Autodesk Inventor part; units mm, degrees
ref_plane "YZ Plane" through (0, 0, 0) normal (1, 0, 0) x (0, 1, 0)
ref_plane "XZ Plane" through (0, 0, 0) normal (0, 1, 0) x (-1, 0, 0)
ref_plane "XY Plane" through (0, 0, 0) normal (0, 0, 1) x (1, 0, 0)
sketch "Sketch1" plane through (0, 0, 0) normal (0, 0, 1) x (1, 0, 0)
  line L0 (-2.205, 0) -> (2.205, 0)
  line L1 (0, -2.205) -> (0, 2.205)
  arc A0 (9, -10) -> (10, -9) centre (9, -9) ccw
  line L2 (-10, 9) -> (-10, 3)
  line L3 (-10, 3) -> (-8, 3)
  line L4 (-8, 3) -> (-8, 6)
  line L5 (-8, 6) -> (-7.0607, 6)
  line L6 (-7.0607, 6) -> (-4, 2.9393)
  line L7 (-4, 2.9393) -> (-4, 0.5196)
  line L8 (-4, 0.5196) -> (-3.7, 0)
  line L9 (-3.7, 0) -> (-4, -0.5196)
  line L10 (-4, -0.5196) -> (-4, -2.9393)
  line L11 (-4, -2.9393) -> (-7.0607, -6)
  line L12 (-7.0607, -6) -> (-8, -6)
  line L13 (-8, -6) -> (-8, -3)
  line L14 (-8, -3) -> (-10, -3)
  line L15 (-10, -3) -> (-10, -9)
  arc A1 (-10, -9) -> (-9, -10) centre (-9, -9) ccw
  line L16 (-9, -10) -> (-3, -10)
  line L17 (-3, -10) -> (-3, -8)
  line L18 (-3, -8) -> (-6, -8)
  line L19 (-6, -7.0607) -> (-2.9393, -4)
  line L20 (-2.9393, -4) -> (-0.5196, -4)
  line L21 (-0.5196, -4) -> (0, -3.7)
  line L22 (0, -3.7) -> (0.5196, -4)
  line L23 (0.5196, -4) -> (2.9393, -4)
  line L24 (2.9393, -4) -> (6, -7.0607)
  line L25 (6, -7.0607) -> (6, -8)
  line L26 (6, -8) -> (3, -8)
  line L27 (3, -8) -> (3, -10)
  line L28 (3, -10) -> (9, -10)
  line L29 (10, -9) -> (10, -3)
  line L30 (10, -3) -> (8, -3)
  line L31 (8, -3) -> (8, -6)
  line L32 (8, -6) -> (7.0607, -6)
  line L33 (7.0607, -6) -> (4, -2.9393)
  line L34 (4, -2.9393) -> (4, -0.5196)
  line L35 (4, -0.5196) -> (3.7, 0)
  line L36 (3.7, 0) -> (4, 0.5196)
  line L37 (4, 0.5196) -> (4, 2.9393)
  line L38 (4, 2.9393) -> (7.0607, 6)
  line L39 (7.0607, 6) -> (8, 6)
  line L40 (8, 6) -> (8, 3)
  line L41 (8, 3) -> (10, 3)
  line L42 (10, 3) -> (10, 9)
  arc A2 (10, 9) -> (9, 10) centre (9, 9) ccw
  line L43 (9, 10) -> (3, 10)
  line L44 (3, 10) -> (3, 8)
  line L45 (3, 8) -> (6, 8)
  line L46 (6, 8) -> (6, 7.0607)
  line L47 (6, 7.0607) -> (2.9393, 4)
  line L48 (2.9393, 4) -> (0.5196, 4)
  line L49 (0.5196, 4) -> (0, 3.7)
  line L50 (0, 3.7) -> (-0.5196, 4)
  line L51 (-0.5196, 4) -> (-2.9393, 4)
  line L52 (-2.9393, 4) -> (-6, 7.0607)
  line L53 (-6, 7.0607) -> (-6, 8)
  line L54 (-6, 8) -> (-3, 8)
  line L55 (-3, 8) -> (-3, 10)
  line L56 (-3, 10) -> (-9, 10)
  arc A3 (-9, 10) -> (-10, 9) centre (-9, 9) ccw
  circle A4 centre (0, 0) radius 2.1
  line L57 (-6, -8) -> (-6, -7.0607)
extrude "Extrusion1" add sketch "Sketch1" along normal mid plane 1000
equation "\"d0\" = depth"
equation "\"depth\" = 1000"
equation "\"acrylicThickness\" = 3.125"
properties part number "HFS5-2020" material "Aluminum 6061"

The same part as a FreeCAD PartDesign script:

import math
import FreeCAD as App
import Part
import Sketcher
Q = App.Units.Quantity

doc = App.newDocument("Part")
body = doc.addObject("PartDesign::Body", "Body")

# Sketch on XY plane
sketch1 = body.newObject("Sketcher::SketchObject", "Sketch")
sketch1.AttachmentSupport = (doc.getObject("XY_Plane"), [""])
sketch1.MapMode = "FlatFace"
sketch1.addGeometry([
    Part.LineSegment(App.Vector(3, -10, 0), App.Vector(9, -10, 0)),  # 0
    Part.ArcOfCircle(Part.Circle(App.Vector(9, -9, 0), App.Vector(0, 0, 1), 1), math.radians(-90), math.radians(0)),  # 1
    Part.LineSegment(App.Vector(10, -9, 0), App.Vector(10, -3, 0)),  # 2
    Part.LineSegment(App.Vector(10, -3, 0), App.Vector(8, -3, 0)),  # 3
    Part.LineSegment(App.Vector(8, -3, 0), App.Vector(8, -6, 0)),  # 4
    Part.LineSegment(App.Vector(8, -6, 0), App.Vector(7.1, -6, 0)),  # 5
    Part.LineSegment(App.Vector(7.1, -6, 0), App.Vector(4, -2.9, 0)),  # 6
    Part.LineSegment(App.Vector(4, -2.9, 0), App.Vector(4, -0.5, 0)),  # 7
    Part.LineSegment(App.Vector(4, -0.5, 0), App.Vector(3.7, 0, 0)),  # 8
    Part.LineSegment(App.Vector(3.7, 0, 0), App.Vector(4, 0.5, 0)),  # 9
    Part.LineSegment(App.Vector(4, 0.5, 0), App.Vector(4, 2.9, 0)),  # 10
    Part.LineSegment(App.Vector(4, 2.9, 0), App.Vector(7.1, 6, 0)),  # 11
    Part.LineSegment(App.Vector(7.1, 6, 0), App.Vector(8, 6, 0)),  # 12
    Part.LineSegment(App.Vector(8, 6, 0), App.Vector(8, 3, 0)),  # 13
    Part.LineSegment(App.Vector(8, 3, 0), App.Vector(10, 3, 0)),  # 14
    Part.LineSegment(App.Vector(10, 3, 0), App.Vector(10, 9, 0)),  # 15
    Part.ArcOfCircle(Part.Circle(App.Vector(9, 9, 0), App.Vector(0, 0, 1), 1), math.radians(0), math.radians(90)),  # 16
    Part.LineSegment(App.Vector(9, 10, 0), App.Vector(3, 10, 0)),  # 17
    Part.LineSegment(App.Vector(3, 10, 0), App.Vector(3, 8, 0)),  # 18
    Part.LineSegment(App.Vector(3, 8, 0), App.Vector(6, 8, 0)),  # 19
    Part.LineSegment(App.Vector(6, 8, 0), App.Vector(6, 7.1, 0)),  # 20
    Part.LineSegment(App.Vector(6, 7.1, 0), App.Vector(2.9, 4, 0)),  # 21
    Part.LineSegment(App.Vector(2.9, 4, 0), App.Vector(0.5, 4, 0)),  # 22
    Part.LineSegment(App.Vector(0.5, 4, 0), App.Vector(0, 3.7, 0)),  # 23
    Part.LineSegment(App.Vector(0, 3.7, 0), App.Vector(-0.5, 4, 0)),  # 24
    Part.LineSegment(App.Vector(-0.5, 4, 0), App.Vector(-2.9, 4, 0)),  # 25
    Part.LineSegment(App.Vector(-2.9, 4, 0), App.Vector(-6, 7.1, 0)),  # 26
    Part.LineSegment(App.Vector(-6, 7.1, 0), App.Vector(-6, 8, 0)),  # 27
    Part.LineSegment(App.Vector(-6, 8, 0), App.Vector(-3, 8, 0)),  # 28
    Part.LineSegment(App.Vector(-3, 8, 0), App.Vector(-3, 10, 0)),  # 29
    Part.LineSegment(App.Vector(-3, 10, 0), App.Vector(-9, 10, 0)),  # 30
    Part.ArcOfCircle(Part.Circle(App.Vector(-9, 9, 0), App.Vector(0, 0, 1), 1), math.radians(90), math.radians(180)),  # 31
    Part.LineSegment(App.Vector(-10, 9, 0), App.Vector(-10, 3, 0)),  # 32
    Part.LineSegment(App.Vector(-10, 3, 0), App.Vector(-8, 3, 0)),  # 33
    Part.LineSegment(App.Vector(-8, 3, 0), App.Vector(-8, 6, 0)),  # 34
    Part.LineSegment(App.Vector(-8, 6, 0), App.Vector(-7.1, 6, 0)),  # 35
    Part.LineSegment(App.Vector(-7.1, 6, 0), App.Vector(-4, 2.9, 0)),  # 36
    Part.LineSegment(App.Vector(-4, 2.9, 0), App.Vector(-4, 0.5, 0)),  # 37
    Part.LineSegment(App.Vector(-4, 0.5, 0), App.Vector(-3.7, 0, 0)),  # 38
    Part.LineSegment(App.Vector(-3.7, 0, 0), App.Vector(-4, -0.5, 0)),  # 39
    Part.LineSegment(App.Vector(-4, -0.5, 0), App.Vector(-4, -2.9, 0)),  # 40
    Part.LineSegment(App.Vector(-4, -2.9, 0), App.Vector(-7.1, -6, 0)),  # 41
    Part.LineSegment(App.Vector(-7.1, -6, 0), App.Vector(-8, -6, 0)),  # 42
    Part.LineSegment(App.Vector(-8, -6, 0), App.Vector(-8, -3, 0)),  # 43
    Part.LineSegment(App.Vector(-8, -3, 0), App.Vector(-10, -3, 0)),  # 44
    Part.LineSegment(App.Vector(-10, -3, 0), App.Vector(-10, -9, 0)),  # 45
    Part.ArcOfCircle(Part.Circle(App.Vector(-9, -9, 0), App.Vector(0, 0, 1), 1), math.radians(180), math.radians(270)),  # 46
    Part.LineSegment(App.Vector(-9, -10, 0), App.Vector(-3, -10, 0)),  # 47
    Part.LineSegment(App.Vector(-3, -10, 0), App.Vector(-3, -8, 0)),  # 48
    Part.LineSegment(App.Vector(-3, -8, 0), App.Vector(-6, -8, 0)),  # 49
    Part.LineSegment(App.Vector(-6, -8, 0), App.Vector(-6, -7.1, 0)),  # 50
    Part.LineSegment(App.Vector(-6, -7.1, 0), App.Vector(-2.9, -4, 0)),  # 51
    Part.LineSegment(App.Vector(-2.9, -4, 0), App.Vector(-0.5, -4, 0)),  # 52
    Part.LineSegment(App.Vector(-0.5, -4, 0), App.Vector(0, -3.7, 0)),  # 53
    Part.LineSegment(App.Vector(0, -3.7, 0), App.Vector(0.5, -4, 0)),  # 54
    Part.LineSegment(App.Vector(0.5, -4, 0), App.Vector(2.9, -4, 0)),  # 55
    Part.LineSegment(App.Vector(2.9, -4, 0), App.Vector(6, -7.1, 0)),  # 56
    Part.LineSegment(App.Vector(6, -7.1, 0), App.Vector(6, -8, 0)),  # 57
    Part.LineSegment(App.Vector(6, -8, 0), App.Vector(3, -8, 0)),  # 58
    Part.LineSegment(App.Vector(3, -8, 0), App.Vector(3, -10, 0)),  # 59
    Part.Circle(App.Vector(0, 0, 0), App.Vector(0, 0, 1), 2.1),  # 60
], False)
sketch1.addConstraint([
    Sketcher.Constraint("Tangent", 0, 2, 1, 1),
    Sketcher.Constraint("Tangent", 1, 2, 2, 1),
    Sketcher.Constraint("Coincident", 2, 2, 3, 1),
    Sketcher.Constraint("Coincident", 3, 2, 4, 1),
    Sketcher.Constraint("Coincident", 4, 2, 5, 1),
    Sketcher.Constraint("Coincident", 5, 2, 6, 1),
    Sketcher.Constraint("Coincident", 6, 2, 7, 1),
    Sketcher.Constraint("Coincident", 7, 2, 8, 1),
    Sketcher.Constraint("Coincident", 8, 2, 9, 1),
    Sketcher.Constraint("Coincident", 9, 2, 10, 1),
    Sketcher.Constraint("Coincident", 10, 2, 11, 1),
    Sketcher.Constraint("Coincident", 11, 2, 12, 1),
    Sketcher.Constraint("Coincident", 12, 2, 13, 1),
    Sketcher.Constraint("Coincident", 13, 2, 14, 1),
    Sketcher.Constraint("Coincident", 14, 2, 15, 1),
    Sketcher.Constraint("Tangent", 15, 2, 16, 1),
    Sketcher.Constraint("Tangent", 16, 2, 17, 1),
    Sketcher.Constraint("Coincident", 17, 2, 18, 1),
    Sketcher.Constraint("Coincident", 18, 2, 19, 1),
    Sketcher.Constraint("Coincident", 19, 2, 20, 1),
    Sketcher.Constraint("Coincident", 20, 2, 21, 1),
    Sketcher.Constraint("Coincident", 21, 2, 22, 1),
    Sketcher.Constraint("Coincident", 22, 2, 23, 1),
    Sketcher.Constraint("Coincident", 23, 2, 24, 1),
    Sketcher.Constraint("Coincident", 24, 2, 25, 1),
    Sketcher.Constraint("Coincident", 25, 2, 26, 1),
    Sketcher.Constraint("Coincident", 26, 2, 27, 1),
    Sketcher.Constraint("Coincident", 27, 2, 28, 1),
    Sketcher.Constraint("Coincident", 28, 2, 29, 1),
    Sketcher.Constraint("Coincident", 29, 2, 30, 1),
    Sketcher.Constraint("Tangent", 30, 2, 31, 1),
    Sketcher.Constraint("Tangent", 31, 2, 32, 1),
    Sketcher.Constraint("Coincident", 32, 2, 33, 1),
    Sketcher.Constraint("Coincident", 33, 2, 34, 1),
    Sketcher.Constraint("Coincident", 34, 2, 35, 1),
    Sketcher.Constraint("Coincident", 35, 2, 36, 1),
    Sketcher.Constraint("Coincident", 36, 2, 37, 1),
    Sketcher.Constraint("Coincident", 37, 2, 38, 1),
    Sketcher.Constraint("Coincident", 38, 2, 39, 1),
    Sketcher.Constraint("Coincident", 39, 2, 40, 1),
    Sketcher.Constraint("Coincident", 40, 2, 41, 1),
    Sketcher.Constraint("Coincident", 41, 2, 42, 1),
    Sketcher.Constraint("Coincident", 42, 2, 43, 1),
    Sketcher.Constraint("Coincident", 43, 2, 44, 1),
    Sketcher.Constraint("Coincident", 44, 2, 45, 1),
    Sketcher.Constraint("Tangent", 45, 2, 46, 1),
    Sketcher.Constraint("Tangent", 46, 2, 47, 1),
    Sketcher.Constraint("Coincident", 47, 2, 48, 1),
    Sketcher.Constraint("Coincident", 48, 2, 49, 1),
    Sketcher.Constraint("Coincident", 49, 2, 50, 1),
    Sketcher.Constraint("Coincident", 50, 2, 51, 1),
    Sketcher.Constraint("Coincident", 51, 2, 52, 1),
    Sketcher.Constraint("Coincident", 52, 2, 53, 1),
    Sketcher.Constraint("Coincident", 53, 2, 54, 1),
    Sketcher.Constraint("Coincident", 54, 2, 55, 1),
    Sketcher.Constraint("Coincident", 55, 2, 56, 1),
    Sketcher.Constraint("Coincident", 56, 2, 57, 1),
    Sketcher.Constraint("Coincident", 57, 2, 58, 1),
    Sketcher.Constraint("Coincident", 58, 2, 59, 1),
    Sketcher.Constraint("Coincident", 59, 2, 0, 1),
    Sketcher.Constraint("Horizontal", 0),
    Sketcher.Constraint("Vertical", 2),
    Sketcher.Constraint("Horizontal", 3),
    Sketcher.Constraint("Vertical", 4),
    Sketcher.Constraint("Horizontal", 5),
    Sketcher.Constraint("Vertical", 7),
    Sketcher.Constraint("Vertical", 10),
    Sketcher.Constraint("Horizontal", 12),
    Sketcher.Constraint("Vertical", 13),
    Sketcher.Constraint("Horizontal", 14),
    Sketcher.Constraint("Vertical", 15),
    Sketcher.Constraint("Horizontal", 17),
    Sketcher.Constraint("Vertical", 18),
    Sketcher.Constraint("Horizontal", 19),
    Sketcher.Constraint("Vertical", 20),
    Sketcher.Constraint("Horizontal", 22),
    Sketcher.Constraint("Horizontal", 25),
    Sketcher.Constraint("Vertical", 27),
    Sketcher.Constraint("Horizontal", 28),
    Sketcher.Constraint("Vertical", 29),
    Sketcher.Constraint("Horizontal", 30),
    Sketcher.Constraint("Vertical", 32),
    Sketcher.Constraint("Horizontal", 33),
    Sketcher.Constraint("Vertical", 34),
    Sketcher.Constraint("Horizontal", 35),
    Sketcher.Constraint("Vertical", 37),
    Sketcher.Constraint("Vertical", 40),
    Sketcher.Constraint("Horizontal", 42),
    Sketcher.Constraint("Vertical", 43),
    Sketcher.Constraint("Horizontal", 44),
    Sketcher.Constraint("Vertical", 45),
    Sketcher.Constraint("Horizontal", 47),
    Sketcher.Constraint("Vertical", 48),
    Sketcher.Constraint("Horizontal", 49),
    Sketcher.Constraint("Vertical", 50),
    Sketcher.Constraint("Horizontal", 52),
    Sketcher.Constraint("Horizontal", 55),
    Sketcher.Constraint("Vertical", 57),
    Sketcher.Constraint("Horizontal", 58),
    Sketcher.Constraint("Vertical", 59),
    Sketcher.Constraint("Coincident", 60, 3, -1, 1),
    Sketcher.Constraint("Equal", 1, 16),
    Sketcher.Constraint("Equal", 16, 31),
    Sketcher.Constraint("Equal", 31, 46),
    Sketcher.Constraint("Symmetric", 1, 3, 31, 3, -1, 1),
    Sketcher.Constraint("Symmetric", 16, 3, 46, 3, -1, 1),
    Sketcher.Constraint("Symmetric", 3, 2, 33, 2, -1, 1),
    Sketcher.Constraint("Symmetric", 5, 2, 35, 2, -1, 1),
    Sketcher.Constraint("Symmetric", 6, 2, 36, 2, -1, 1),
    Sketcher.Constraint("Symmetric", 8, 2, 38, 2, -1, 1),
    Sketcher.Constraint("Symmetric", 9, 2, 39, 2, -1, 1),
    Sketcher.Constraint("Symmetric", 11, 2, 41, 2, -1, 1),
    Sketcher.Constraint("Symmetric", 13, 2, 43, 2, -1, 1),
    Sketcher.Constraint("Symmetric", 18, 2, 48, 2, -1, 1),
    Sketcher.Constraint("Symmetric", 20, 2, 50, 2, -1, 1),
    Sketcher.Constraint("Symmetric", 21, 2, 51, 2, -1, 1),
    Sketcher.Constraint("Symmetric", 23, 2, 53, 2, -1, 1),
    Sketcher.Constraint("Symmetric", 24, 2, 54, 2, -1, 1),
    Sketcher.Constraint("Symmetric", 26, 2, 56, 2, -1, 1),
    Sketcher.Constraint("Symmetric", 28, 2, 58, 2, -1, 1),
    Sketcher.Constraint("Symmetric", 16, 3, 31, 3, -2),
    Sketcher.Constraint("Symmetric", 22, 2, 24, 2, -2),
    Sketcher.Constraint("Symmetric", 20, 2, 26, 2, -2),
    Sketcher.Constraint("Symmetric", 18, 2, 28, 2, -2),
    Sketcher.Constraint("Symmetric", 13, 2, 33, 2, -2),
    Sketcher.Constraint("Symmetric", 11, 2, 35, 2, -2),
    Sketcher.Constraint("Symmetric", 10, 2, 36, 2, -2),
    Sketcher.Constraint("PointOnObject", 8, 2, -1),
    Sketcher.Constraint("PointOnObject", 23, 2, -2),
    Sketcher.Constraint("Perpendicular", 6, 11),
    Sketcher.Constraint("Parallel", 11, 21),
    Sketcher.Constraint("Perpendicular", 8, 23),
    Sketcher.Constraint("Perpendicular", 9, 24),
    Sketcher.Constraint("Perpendicular", 21, 26),
    Sketcher.Constraint("Perpendicular", 23, 38),
    Sketcher.Constraint("Perpendicular", 36, 41),
    Sketcher.Constraint("Perpendicular", 38, 53),
    Sketcher.Constraint("Perpendicular", 51, 56),
    Sketcher.Constraint("Equal", 47, 2),
    Sketcher.Constraint("Equal", 58, 4),
    Sketcher.Constraint("Equal", 55, 7),
    Sketcher.Constraint("Equal", 44, 18),
    Sketcher.Constraint("Equal", 42, 20),
    Sketcher.Constraint("Equal", 11, 21),
    Sketcher.Constraint("Equal", 9, 23),
    Sketcher.Constraint("Radius", 1, Q("1 mm")),
    Sketcher.Constraint("Diameter", 60, Q("4.2 mm")),
    Sketcher.Constraint("DistanceX", 0, 1, 0, 2, Q("6 mm")),
    Sketcher.Constraint("DistanceX", 3, 2, 3, 1, Q("2 mm")),
    Sketcher.Constraint("DistanceX", 19, 1, 19, 2, Q("3 mm")),
    Sketcher.Constraint("Angle", 8, Q("120.0007 deg")),
    Sketcher.Constraint("DistanceX", -1, 1, 1, 3, Q("9 mm")),
    Sketcher.Constraint("DistanceX", -1, 1, 6, 2, Q("4 mm")),
    Sketcher.Constraint("Distance", 8, Q("0.6 mm")),
    Sketcher.Constraint("DistanceX", 5, 2, 5, 1, Q("0.9393 mm")),
])
pad1 = body.newObject("PartDesign::Pad", "Pad")
pad1.Profile = sketch1
pad1.Length = 1000
pad1.Midplane = True

doc.recompute()
